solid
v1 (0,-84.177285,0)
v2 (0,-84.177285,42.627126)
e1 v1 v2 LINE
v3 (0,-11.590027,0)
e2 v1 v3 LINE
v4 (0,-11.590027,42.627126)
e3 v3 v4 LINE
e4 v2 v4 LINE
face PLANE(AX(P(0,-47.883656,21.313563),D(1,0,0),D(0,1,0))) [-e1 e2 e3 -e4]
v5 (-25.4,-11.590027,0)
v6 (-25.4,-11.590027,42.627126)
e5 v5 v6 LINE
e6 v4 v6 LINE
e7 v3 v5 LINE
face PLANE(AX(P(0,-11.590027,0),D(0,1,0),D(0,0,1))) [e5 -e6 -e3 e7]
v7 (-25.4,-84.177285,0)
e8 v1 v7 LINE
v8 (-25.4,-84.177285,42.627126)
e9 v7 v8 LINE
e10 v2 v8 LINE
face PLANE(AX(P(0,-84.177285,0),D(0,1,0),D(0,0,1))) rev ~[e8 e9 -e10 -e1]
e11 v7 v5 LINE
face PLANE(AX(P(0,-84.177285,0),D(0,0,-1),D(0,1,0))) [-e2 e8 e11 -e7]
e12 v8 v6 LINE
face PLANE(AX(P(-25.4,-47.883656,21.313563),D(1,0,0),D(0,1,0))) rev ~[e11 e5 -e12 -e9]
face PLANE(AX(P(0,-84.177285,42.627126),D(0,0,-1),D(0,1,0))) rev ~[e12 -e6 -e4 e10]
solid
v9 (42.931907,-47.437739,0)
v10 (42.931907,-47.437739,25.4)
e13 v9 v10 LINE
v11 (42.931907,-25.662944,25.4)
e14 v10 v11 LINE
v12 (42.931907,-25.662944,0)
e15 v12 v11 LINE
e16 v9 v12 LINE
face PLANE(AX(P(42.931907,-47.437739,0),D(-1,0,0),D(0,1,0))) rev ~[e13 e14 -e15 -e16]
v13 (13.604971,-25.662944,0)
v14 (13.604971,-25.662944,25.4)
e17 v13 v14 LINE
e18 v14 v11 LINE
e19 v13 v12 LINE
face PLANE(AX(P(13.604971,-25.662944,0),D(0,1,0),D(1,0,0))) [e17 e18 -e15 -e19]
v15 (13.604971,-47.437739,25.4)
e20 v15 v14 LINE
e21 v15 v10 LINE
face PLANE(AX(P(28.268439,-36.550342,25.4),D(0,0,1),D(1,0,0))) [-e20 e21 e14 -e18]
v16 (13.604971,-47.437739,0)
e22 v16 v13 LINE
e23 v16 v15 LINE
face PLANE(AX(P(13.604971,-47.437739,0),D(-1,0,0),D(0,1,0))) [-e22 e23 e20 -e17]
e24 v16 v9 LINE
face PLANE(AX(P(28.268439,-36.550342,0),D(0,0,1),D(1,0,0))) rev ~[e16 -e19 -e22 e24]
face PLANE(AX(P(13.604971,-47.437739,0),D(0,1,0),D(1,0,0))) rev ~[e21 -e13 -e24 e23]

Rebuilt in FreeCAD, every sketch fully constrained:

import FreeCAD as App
import Part
import Sketcher
Q = App.Units.Quantity


def add_polygon(sketch, points):
    """Adds a closed chain of lines whose ends are joined by coincident constraints."""
    first, n = sketch.GeometryCount, len(points)
    for a, b in zip(points, points[1:] + points[:1]):
        sketch.addGeometry(Part.LineSegment(App.Vector(*a, 0), App.Vector(*b, 0)), False)
    for i in range(n):
        sketch.addConstraint(Sketcher.Constraint("Coincident", first + i, 2, first + (i + 1) % n, 1))

doc = App.newDocument("Part")
body = doc.addObject("PartDesign::Body", "Body")

# Sketch on YZ plane
sketch1 = doc.addObject("Sketcher::SketchObject", "Sketch")
body.addObject(sketch1)
sketch1.AttachmentSupport = (doc.YZ_Plane, [""])
sketch1.MapMode = "FlatFace"
add_polygon(sketch1, [(-84, 43), (-84, 0), (-12, 0), (-12, 43)])  # lines 0-3
sketch1.addConstraint(Sketcher.Constraint("Vertical", 0))
sketch1.addConstraint(Sketcher.Constraint("Horizontal", 1))
sketch1.addConstraint(Sketcher.Constraint("Vertical", 2))
sketch1.addConstraint(Sketcher.Constraint("Horizontal", 3))
sketch1.addConstraint(Sketcher.Constraint("PointOnObject", 0, 2, -1))
sketch1.addConstraint(Sketcher.Constraint("DistanceX", 1, 1, 1, 2, Q("72.587258 mm")))
sketch1.addConstraint(Sketcher.Constraint("DistanceY", 0, 2, 0, 1, Q("42.627126 mm")))
sketch1.addConstraint(Sketcher.Constraint("DistanceX", 0, 2, -1, 1, Q("84.177285 mm")))
pad1 = doc.addObject("PartDesign::Pad", "Pad")
body.addObject(pad1)
pad1.Profile = sketch1
pad1.Length = Q("1 in")
pad1.Reversed = True
body2 = doc.addObject("PartDesign::Body", "Body001")

# Sketch on XY plane
sketch2 = doc.addObject("Sketcher::SketchObject", "Sketch001")
body2.addObject(sketch2)
sketch2.AttachmentSupport = (doc.getObject("XY_Plane001"), [""])
sketch2.MapMode = "FlatFace"
add_polygon(sketch2, [(14, -26), (14, -47), (43, -47), (43, -26)])  # lines 0-3
sketch2.addConstraint(Sketcher.Constraint("Vertical", 0))
sketch2.addConstraint(Sketcher.Constraint("Horizontal", 1))
sketch2.addConstraint(Sketcher.Constraint("Vertical", 2))
sketch2.addConstraint(Sketcher.Constraint("Horizontal", 3))
sketch2.addConstraint(Sketcher.Constraint("DistanceX", 1, 1, 1, 2, Q("29.326936 mm")))
sketch2.addConstraint(Sketcher.Constraint("DistanceY", 0, 2, 0, 1, Q("21.774795 mm")))
sketch2.addConstraint(Sketcher.Constraint("DistanceX", -1, 1, 0, 2, Q("13.604971 mm")))
sketch2.addConstraint(Sketcher.Constraint("DistanceY", 0, 2, -1, 1, Q("47.437739 mm")))
pad2 = doc.addObject("PartDesign::Pad", "Pad001")
body2.addObject(pad2)
pad2.Profile = sketch2
pad2.Length = Q("1 in")

doc.recompute()
